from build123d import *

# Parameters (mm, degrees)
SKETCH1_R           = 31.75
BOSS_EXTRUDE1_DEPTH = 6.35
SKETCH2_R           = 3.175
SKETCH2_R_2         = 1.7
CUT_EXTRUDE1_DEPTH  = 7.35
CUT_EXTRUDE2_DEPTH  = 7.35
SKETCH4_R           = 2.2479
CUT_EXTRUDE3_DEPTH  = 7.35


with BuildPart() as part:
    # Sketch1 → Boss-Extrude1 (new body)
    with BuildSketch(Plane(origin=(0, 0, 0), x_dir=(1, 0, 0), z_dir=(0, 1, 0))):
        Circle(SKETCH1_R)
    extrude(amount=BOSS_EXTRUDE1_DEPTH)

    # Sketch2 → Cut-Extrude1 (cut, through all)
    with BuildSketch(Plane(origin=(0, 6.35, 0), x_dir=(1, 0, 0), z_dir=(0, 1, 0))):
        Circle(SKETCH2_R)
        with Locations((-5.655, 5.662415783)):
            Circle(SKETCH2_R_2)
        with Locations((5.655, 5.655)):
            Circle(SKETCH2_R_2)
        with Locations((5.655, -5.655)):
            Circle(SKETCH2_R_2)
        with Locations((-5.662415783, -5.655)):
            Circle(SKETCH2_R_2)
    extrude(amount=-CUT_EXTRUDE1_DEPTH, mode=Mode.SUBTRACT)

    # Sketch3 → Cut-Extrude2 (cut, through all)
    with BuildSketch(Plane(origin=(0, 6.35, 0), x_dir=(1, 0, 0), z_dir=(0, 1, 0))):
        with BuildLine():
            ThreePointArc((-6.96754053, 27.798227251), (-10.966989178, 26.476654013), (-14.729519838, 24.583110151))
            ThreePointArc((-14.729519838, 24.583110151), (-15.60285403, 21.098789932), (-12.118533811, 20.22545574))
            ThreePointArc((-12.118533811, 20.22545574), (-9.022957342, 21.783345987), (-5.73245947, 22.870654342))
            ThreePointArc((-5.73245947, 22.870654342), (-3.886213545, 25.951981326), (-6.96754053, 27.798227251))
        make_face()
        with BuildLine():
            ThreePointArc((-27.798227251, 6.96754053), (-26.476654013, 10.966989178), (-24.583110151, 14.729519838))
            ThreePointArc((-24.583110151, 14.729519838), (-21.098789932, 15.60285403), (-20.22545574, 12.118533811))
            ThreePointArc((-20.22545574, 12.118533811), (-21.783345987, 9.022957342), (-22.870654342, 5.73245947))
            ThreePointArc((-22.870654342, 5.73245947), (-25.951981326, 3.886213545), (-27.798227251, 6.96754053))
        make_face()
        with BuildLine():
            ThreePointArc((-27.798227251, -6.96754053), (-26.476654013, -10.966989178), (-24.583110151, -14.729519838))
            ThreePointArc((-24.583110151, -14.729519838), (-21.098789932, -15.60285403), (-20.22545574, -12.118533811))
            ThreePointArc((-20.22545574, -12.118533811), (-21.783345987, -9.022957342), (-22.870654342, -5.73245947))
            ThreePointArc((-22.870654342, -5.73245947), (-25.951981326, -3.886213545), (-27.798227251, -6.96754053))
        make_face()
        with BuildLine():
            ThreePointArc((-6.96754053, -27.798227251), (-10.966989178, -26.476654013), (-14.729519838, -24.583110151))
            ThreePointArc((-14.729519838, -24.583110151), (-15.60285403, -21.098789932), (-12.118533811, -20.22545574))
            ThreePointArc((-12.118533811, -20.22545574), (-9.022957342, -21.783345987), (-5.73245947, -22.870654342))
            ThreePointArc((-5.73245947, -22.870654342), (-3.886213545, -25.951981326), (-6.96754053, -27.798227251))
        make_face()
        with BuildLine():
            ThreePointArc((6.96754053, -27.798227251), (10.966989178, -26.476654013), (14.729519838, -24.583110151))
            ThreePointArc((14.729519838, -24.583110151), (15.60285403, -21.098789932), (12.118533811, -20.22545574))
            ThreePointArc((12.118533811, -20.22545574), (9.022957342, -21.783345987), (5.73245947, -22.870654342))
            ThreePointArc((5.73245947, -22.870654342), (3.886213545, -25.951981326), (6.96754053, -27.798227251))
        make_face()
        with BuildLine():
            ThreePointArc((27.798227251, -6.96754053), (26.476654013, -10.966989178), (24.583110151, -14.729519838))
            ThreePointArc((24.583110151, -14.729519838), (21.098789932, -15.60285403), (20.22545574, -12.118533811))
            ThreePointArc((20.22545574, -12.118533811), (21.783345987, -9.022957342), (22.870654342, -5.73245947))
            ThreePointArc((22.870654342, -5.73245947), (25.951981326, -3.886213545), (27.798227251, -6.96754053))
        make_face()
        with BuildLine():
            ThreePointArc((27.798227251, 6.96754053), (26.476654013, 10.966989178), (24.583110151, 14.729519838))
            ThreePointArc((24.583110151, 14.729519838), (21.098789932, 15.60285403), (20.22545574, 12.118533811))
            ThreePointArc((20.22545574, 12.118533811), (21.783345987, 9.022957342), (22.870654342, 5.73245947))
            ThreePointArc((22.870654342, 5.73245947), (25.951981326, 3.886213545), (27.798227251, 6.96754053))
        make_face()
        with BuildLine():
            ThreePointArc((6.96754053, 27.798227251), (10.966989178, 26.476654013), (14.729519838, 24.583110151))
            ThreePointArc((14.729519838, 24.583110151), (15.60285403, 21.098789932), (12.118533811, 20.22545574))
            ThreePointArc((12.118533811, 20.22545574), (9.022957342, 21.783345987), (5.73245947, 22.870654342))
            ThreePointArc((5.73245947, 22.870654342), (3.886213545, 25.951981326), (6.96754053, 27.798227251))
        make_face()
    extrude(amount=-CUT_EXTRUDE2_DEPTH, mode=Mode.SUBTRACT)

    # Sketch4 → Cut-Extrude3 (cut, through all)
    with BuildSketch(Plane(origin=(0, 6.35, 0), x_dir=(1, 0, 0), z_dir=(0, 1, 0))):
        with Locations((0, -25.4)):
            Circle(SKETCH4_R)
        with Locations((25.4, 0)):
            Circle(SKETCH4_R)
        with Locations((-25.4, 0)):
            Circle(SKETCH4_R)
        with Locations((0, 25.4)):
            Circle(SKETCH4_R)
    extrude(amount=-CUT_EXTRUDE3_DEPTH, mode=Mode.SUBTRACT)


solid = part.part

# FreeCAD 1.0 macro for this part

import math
import FreeCAD as App
import Part
import Sketcher

V = App.Vector
Q = App.Units.Quantity

doc = App.newDocument("Part")
params = doc.addObject("Spreadsheet::Sheet", "Params")
for row, (alias, value) in enumerate([
    ("sketch1_diameter", "2.5 in"),
    ("pad1_length", "0.25 in"),
    ("sketch2_diameter", "0.25 in"),
    ("sketch3_radius", "0.1 in"),
    ("sketch4_diameter", "0.177 in"),
], start=1):
    params.set(f"A{row}", alias)
    params.set(f"B{row}", "=" + value)
    params.setAlias(f"B{row}", alias)

body = doc.addObject("PartDesign::Body", "Body")

sketch1 = body.newObject("Sketcher::SketchObject", "Sketch")
sketch1.AttachmentSupport = (doc.getObject("XZ_Plane"), [""])
sketch1.MapMode = "FlatFace"
sketch1.addGeometry(Part.Circle(V(0, 0, 0), V(0, 0, 1), 32), False)
sketch1.addConstraint([
    Sketcher.Constraint("Coincident", 0, 3, -1, 1),
    Sketcher.Constraint("Diameter", 0, Q("2.5 in")),
])
sketch1.setExpression("Constraints[1]", "Params.sketch1_diameter")
pad1 = body.newObject("PartDesign::Pad", "Pad")
pad1.Profile = sketch1
pad1.setExpression("Length", "Params.pad1_length")
pad1.Reversed = True

sketch2 = body.newObject("Sketcher::SketchObject", "Sketch001")
sketch2.AttachmentSupport = (doc.getObject("XZ_Plane"), [""])
sketch2.MapMode = "FlatFace"
sketch2.AttachmentOffset = App.Placement(V(0, 0, -0.25 * 25.4), App.Rotation())
sketch2.addGeometry([
    Part.Circle(V(0, 0, 0), V(0, 0, 1), 3.2),
    Part.Circle(V(-5.7, -5.7, 0), V(0, 0, 1), 1.7),
    Part.Circle(V(5.7, -5.7, 0), V(0, 0, 1), 1.7),
    Part.Circle(V(5.7, 5.7, 0), V(0, 0, 1), 1.7),
    Part.Circle(V(-5.7, 5.7, 0), V(0, 0, 1), 1.7),
], False)
sketch2.addConstraint([
    Sketcher.Constraint("Coincident", 0, 3, -1, 1),
    Sketcher.Constraint("Equal", 1, 2),
    Sketcher.Constraint("Equal", 2, 3),
    Sketcher.Constraint("Equal", 3, 4),
    Sketcher.Constraint("Symmetric", 2, 3, 3, 3, -1),
    Sketcher.Constraint("Horizontal", 3, 3, 4, 3),
    Sketcher.Constraint("Diameter", 0, Q("0.25 in")),
    Sketcher.Constraint("Diameter", 1, Q("3.4 mm")),
    Sketcher.Constraint("DistanceX", 1, 3, -1, 1, Q("5.655 mm")),
    Sketcher.Constraint("DistanceX", -1, 1, 2, 3, Q("5.655 mm")),
    Sketcher.Constraint("DistanceY", 2, 3, -1, 1, Q("5.655 mm")),
    Sketcher.Constraint("DistanceY", 1, 3, -1, 1, Q("5.662416 mm")),
    Sketcher.Constraint("DistanceX", 4, 3, -1, 1, Q("5.662416 mm")),
])
sketch2.setExpression("Constraints[6]", "Params.sketch2_diameter")
pocket1 = body.newObject("PartDesign::Pocket", "Pocket")
pocket1.Profile = sketch2
pocket1.Type = "ThroughAll"
pocket1.Reversed = True

sketch3 = body.newObject("Sketcher::SketchObject", "Sketch002")
sketch3.AttachmentSupport = (doc.getObject("XZ_Plane"), [""])
sketch3.MapMode = "FlatFace"
sketch3.AttachmentOffset = App.Placement(V(0, 0, -0.25 * 25.4), App.Rotation())
sketch3.addGeometry([
    Part.ArcOfCircle(Part.Circle(V(0, 0, 0), V(0, 0, 1), 28.7), math.radians(-120.93), math.radians(-104.07)),
    Part.ArcOfCircle(Part.Circle(V(-13.4, -22.4, 0), V(0, 0, 1), 2.5), math.radians(59), math.radians(239)),
    Part.ArcOfCircle(Part.Circle(V(0, 0, 0), V(0, 0, 1), 23.6), math.radians(-120.93), math.radians(-104.07)),
    Part.ArcOfCircle(Part.Circle(V(-6.3, -25.3, 0), V(0, 0, 1), 2.5), math.radians(-104), math.radians(76)),
    Part.ArcOfCircle(Part.Circle(V(0, 0, 0), V(0, 0, 1), 28.7), math.radians(-165.93), math.radians(-149.07)),
    Part.ArcOfCircle(Part.Circle(V(-25.3, -6.3, 0), V(0, 0, 1), 2.5), math.radians(14), math.radians(194)),
    Part.ArcOfCircle(Part.Circle(V(0, 0, 0), V(0, 0, 1), 23.6), math.radians(-165.93), math.radians(-149.07)),
    Part.ArcOfCircle(Part.Circle(V(-22.4, -13.4, 0), V(0, 0, 1), 2.5), math.radians(-149), math.radians(31)),
    Part.ArcOfCircle(Part.Circle(V(0, 0, 0), V(0, 0, 1), 28.7), math.radians(149.07), math.radians(165.93)),
    Part.ArcOfCircle(Part.Circle(V(-22.4, 13.4, 0), V(0, 0, 1), 2.5), math.radians(-31), math.radians(149)),
    Part.ArcOfCircle(Part.Circle(V(0, 0, 0), V(0, 0, 1), 23.6), math.radians(149.07), math.radians(165.93)),
    Part.ArcOfCircle(Part.Circle(V(-25.3, 6.3, 0), V(0, 0, 1), 2.5), math.radians(166), math.radians(346)),
    Part.ArcOfCircle(Part.Circle(V(0, 0, 0), V(0, 0, 1), 28.7), math.radians(104.07), math.radians(120.93)),
    Part.ArcOfCircle(Part.Circle(V(-6.3, 25.3, 0), V(0, 0, 1), 2.5), math.radians(-76), math.radians(104)),
    Part.ArcOfCircle(Part.Circle(V(0, 0, 0), V(0, 0, 1), 23.6), math.radians(104.07), math.radians(120.93)),
    Part.ArcOfCircle(Part.Circle(V(-13.4, 22.4, 0), V(0, 0, 1), 2.5), math.radians(121), math.radians(301)),
    Part.ArcOfCircle(Part.Circle(V(0, 0, 0), V(0, 0, 1), 28.7), math.radians(59.07), math.radians(75.93)),
    Part.ArcOfCircle(Part.Circle(V(13.4, 22.4, 0), V(0, 0, 1), 2.5), math.radians(-121), math.radians(59)),
    Part.ArcOfCircle(Part.Circle(V(0, 0, 0), V(0, 0, 1), 23.6), math.radians(59.07), math.radians(75.93)),
    Part.ArcOfCircle(Part.Circle(V(6.3, 25.3, 0), V(0, 0, 1), 2.5), math.radians(76), math.radians(256)),
    Part.ArcOfCircle(Part.Circle(V(0, 0, 0), V(0, 0, 1), 28.7), math.radians(14.07), math.radians(30.93)),
    Part.ArcOfCircle(Part.Circle(V(25.3, 6.3, 0), V(0, 0, 1), 2.5), math.radians(-166), math.radians(14)),
    Part.ArcOfCircle(Part.Circle(V(0, 0, 0), V(0, 0, 1), 23.6), math.radians(14.07), math.radians(30.93)),
    Part.ArcOfCircle(Part.Circle(V(22.4, 13.4, 0), V(0, 0, 1), 2.5), math.radians(31), math.radians(211)),
    Part.ArcOfCircle(Part.Circle(V(0, 0, 0), V(0, 0, 1), 28.7), math.radians(-30.93), math.radians(-14.07)),
    Part.ArcOfCircle(Part.Circle(V(22.4, -13.4, 0), V(0, 0, 1), 2.5), math.radians(149), math.radians(329)),
    Part.ArcOfCircle(Part.Circle(V(0, 0, 0), V(0, 0, 1), 23.6), math.radians(-30.93), math.radians(-14.07)),
    Part.ArcOfCircle(Part.Circle(V(25.3, -6.3, 0), V(0, 0, 1), 2.5), math.radians(-14), math.radians(166)),
    Part.ArcOfCircle(Part.Circle(V(0, 0, 0), V(0, 0, 1), 28.7), math.radians(-75.93), math.radians(-59.07)),
    Part.ArcOfCircle(Part.Circle(V(6.3, -25.3, 0), V(0, 0, 1), 2.5), math.radians(104), math.radians(284)),
    Part.ArcOfCircle(Part.Circle(V(0, 0, 0), V(0, 0, 1), 23.6), math.radians(-75.93), math.radians(-59.07)),
    Part.ArcOfCircle(Part.Circle(V(13.4, -22.4, 0), V(0, 0, 1), 2.5), math.radians(-59), math.radians(121)),
], False)
sketch3.addConstraint([
    Sketcher.Constraint("Tangent", 0, 1, 1, 2),
    Sketcher.Constraint("Tangent", 1, 1, 2, 1),
    Sketcher.Constraint("Tangent", 2, 2, 3, 2),
    Sketcher.Constraint("Tangent", 3, 1, 0, 2),
    Sketcher.Constraint("Tangent", 4, 1, 5, 2),
    Sketcher.Constraint("Tangent", 5, 1, 6, 1),
    Sketcher.Constraint("Tangent", 6, 2, 7, 2),
    Sketcher.Constraint("Tangent", 7, 1, 4, 2),
    Sketcher.Constraint("Tangent", 8, 1, 9, 2),
    Sketcher.Constraint("Tangent", 9, 1, 10, 1),
    Sketcher.Constraint("Tangent", 10, 2, 11, 2),
    Sketcher.Constraint("Tangent", 11, 1, 8, 2),
    Sketcher.Constraint("Tangent", 12, 1, 13, 2),
    Sketcher.Constraint("Tangent", 13, 1, 14, 1),
    Sketcher.Constraint("Tangent", 14, 2, 15, 2),
    Sketcher.Constraint("Tangent", 15, 1, 12, 2),
    Sketcher.Constraint("Tangent", 16, 1, 17, 2),
    Sketcher.Constraint("Tangent", 17, 1, 18, 1),
    Sketcher.Constraint("Tangent", 18, 2, 19, 2),
    Sketcher.Constraint("Tangent", 19, 1, 16, 2),
    Sketcher.Constraint("Tangent", 20, 1, 21, 2),
    Sketcher.Constraint("Tangent", 21, 1, 22, 1),
    Sketcher.Constraint("Tangent", 22, 2, 23, 2),
    Sketcher.Constraint("Tangent", 23, 1, 20, 2),
    Sketcher.Constraint("Tangent", 24, 1, 25, 2),
    Sketcher.Constraint("Tangent", 25, 1, 26, 1),
    Sketcher.Constraint("Tangent", 26, 2, 27, 2),
    Sketcher.Constraint("Tangent", 27, 1, 24, 2),
    Sketcher.Constraint("Tangent", 28, 1, 29, 2),
    Sketcher.Constraint("Tangent", 29, 1, 30, 1),
    Sketcher.Constraint("Tangent", 30, 2, 31, 2),
    Sketcher.Constraint("Tangent", 31, 1, 28, 2),
    Sketcher.Constraint("Coincident", 0, 3, -1, 1),
    Sketcher.Constraint("Coincident", 2, 3, -1, 1),
    Sketcher.Constraint("Coincident", 4, 3, -1, 1),
    Sketcher.Constraint("Coincident", 6, 3, -1, 1),
    Sketcher.Constraint("Coincident", 8, 3, -1, 1),
    Sketcher.Constraint("Coincident", 10, 3, -1, 1),
    Sketcher.Constraint("Coincident", 12, 3, -1, 1),
    Sketcher.Constraint("Coincident", 14, 3, -1, 1),
    Sketcher.Constraint("Coincident", 16, 3, -1, 1),
    Sketcher.Constraint("Coincident", 18, 3, -1, 1),
    Sketcher.Constraint("Coincident", 20, 3, -1, 1),
    Sketcher.Constraint("Coincident", 22, 3, -1, 1),
    Sketcher.Constraint("Coincident", 24, 3, -1, 1),
    Sketcher.Constraint("Coincident", 26, 3, -1, 1),
    Sketcher.Constraint("Coincident", 28, 3, -1, 1),
    Sketcher.Constraint("Coincident", 30, 3, -1, 1),
    Sketcher.Constraint("Equal", 0, 4),
    Sketcher.Constraint("Equal", 3, 5),
    Sketcher.Constraint("Equal", 4, 8),
    Sketcher.Constraint("Equal", 7, 9),
    Sketcher.Constraint("Equal", 8, 12),
    Sketcher.Constraint("Equal", 11, 13),
    Sketcher.Constraint("Equal", 12, 16),
    Sketcher.Constraint("Equal", 15, 17),
    Sketcher.Constraint("Equal", 16, 20),
    Sketcher.Constraint("Equal", 19, 21),
    Sketcher.Constraint("Equal", 20, 24),
    Sketcher.Constraint("Equal", 23, 25),
    Sketcher.Constraint("Equal", 24, 28),
    Sketcher.Constraint("Equal", 27, 29),
    Sketcher.Constraint("Horizontal", 15, 3, 17, 3),
    Sketcher.Constraint("Horizontal", 13, 3, 19, 3),
    Sketcher.Constraint("Horizontal", 11, 3, 21, 3),
    Sketcher.Constraint("Horizontal", 9, 3, 23, 3),
    Sketcher.Constraint("Horizontal", 7, 3, 25, 3),
    Sketcher.Constraint("Horizontal", 5, 3, 27, 3),
    Sketcher.Constraint("Horizontal", 3, 3, 29, 3),
    Sketcher.Constraint("Horizontal", 1, 3, 31, 3),
    Sketcher.Constraint("Vertical", 7, 3, 9, 3),
    Sketcher.Constraint("Vertical", 5, 3, 11, 3),
    Sketcher.Constraint("Vertical", 3, 3, 13, 3),
    Sketcher.Constraint("Vertical", 1, 3, 15, 3),
    Sketcher.Constraint("Radius", 1, Q("0.1 in")),
    Sketcher.Constraint("DistanceX", 3, 3, -1, 1, Q("0.25 in")),
    Sketcher.Constraint("DistanceY", 5, 3, -1, 1, Q("0.25 in")),
    Sketcher.Constraint("Radius", 0, Q("28.658124 mm")),
    Sketcher.Constraint("DistanceX", 0, 1, -1, 1, Q("14.72952 mm")),
    Sketcher.Constraint("DistanceX", 7, 1, -1, 1, Q("24.58311 mm")),
])
sketch3.setExpression("Constraints[74]", "Params.sketch3_radius")
pocket2 = body.newObject("PartDesign::Pocket", "Pocket001")
pocket2.Profile = sketch3
pocket2.Type = "ThroughAll"
pocket2.Reversed = True

sketch4 = body.newObject("Sketcher::SketchObject", "Sketch003")
sketch4.AttachmentSupport = (doc.getObject("XZ_Plane"), [""])
sketch4.MapMode = "FlatFace"
sketch4.AttachmentOffset = App.Placement(V(0, 0, -0.25 * 25.4), App.Rotation())
sketch4.addGeometry([
    Part.Circle(V(0, 25.4, 0), V(0, 0, 1), 2.2),
    Part.Circle(V(25.4, 0, 0), V(0, 0, 1), 2.2),
    Part.Circle(V(-25.4, 0, 0), V(0, 0, 1), 2.2),
    Part.Circle(V(0, -25.4, 0), V(0, 0, 1), 2.2),
], False)
sketch4.addConstraint([
    Sketcher.Constraint("Equal", 0, 1),
    Sketcher.Constraint("Equal", 1, 2),
    Sketcher.Constraint("Equal", 2, 3),
    Sketcher.Constraint("Symmetric", 1, 3, 2, 3, -1, 1),
    Sketcher.Constraint("Symmetric", 0, 3, 3, 3, -1, 1),
    Sketcher.Constraint("PointOnObject", 0, 3, -2),
    Sketcher.Constraint("PointOnObject", 1, 3, -1),
    Sketcher.Constraint("Diameter", 0, Q("0.177 in")),
    Sketcher.Constraint("DistanceY", -1, 1, 0, 3, Q("1 in")),
    Sketcher.Constraint("DistanceX", -1, 1, 1, 3, Q("1 in")),
])
sketch4.setExpression("Constraints[7]", "Params.sketch4_diameter")
pocket3 = body.newObject("PartDesign::Pocket", "Pocket002")
pocket3.Profile = sketch4
pocket3.Type = "ThroughAll"
pocket3.Reversed = True

doc.recompute()
